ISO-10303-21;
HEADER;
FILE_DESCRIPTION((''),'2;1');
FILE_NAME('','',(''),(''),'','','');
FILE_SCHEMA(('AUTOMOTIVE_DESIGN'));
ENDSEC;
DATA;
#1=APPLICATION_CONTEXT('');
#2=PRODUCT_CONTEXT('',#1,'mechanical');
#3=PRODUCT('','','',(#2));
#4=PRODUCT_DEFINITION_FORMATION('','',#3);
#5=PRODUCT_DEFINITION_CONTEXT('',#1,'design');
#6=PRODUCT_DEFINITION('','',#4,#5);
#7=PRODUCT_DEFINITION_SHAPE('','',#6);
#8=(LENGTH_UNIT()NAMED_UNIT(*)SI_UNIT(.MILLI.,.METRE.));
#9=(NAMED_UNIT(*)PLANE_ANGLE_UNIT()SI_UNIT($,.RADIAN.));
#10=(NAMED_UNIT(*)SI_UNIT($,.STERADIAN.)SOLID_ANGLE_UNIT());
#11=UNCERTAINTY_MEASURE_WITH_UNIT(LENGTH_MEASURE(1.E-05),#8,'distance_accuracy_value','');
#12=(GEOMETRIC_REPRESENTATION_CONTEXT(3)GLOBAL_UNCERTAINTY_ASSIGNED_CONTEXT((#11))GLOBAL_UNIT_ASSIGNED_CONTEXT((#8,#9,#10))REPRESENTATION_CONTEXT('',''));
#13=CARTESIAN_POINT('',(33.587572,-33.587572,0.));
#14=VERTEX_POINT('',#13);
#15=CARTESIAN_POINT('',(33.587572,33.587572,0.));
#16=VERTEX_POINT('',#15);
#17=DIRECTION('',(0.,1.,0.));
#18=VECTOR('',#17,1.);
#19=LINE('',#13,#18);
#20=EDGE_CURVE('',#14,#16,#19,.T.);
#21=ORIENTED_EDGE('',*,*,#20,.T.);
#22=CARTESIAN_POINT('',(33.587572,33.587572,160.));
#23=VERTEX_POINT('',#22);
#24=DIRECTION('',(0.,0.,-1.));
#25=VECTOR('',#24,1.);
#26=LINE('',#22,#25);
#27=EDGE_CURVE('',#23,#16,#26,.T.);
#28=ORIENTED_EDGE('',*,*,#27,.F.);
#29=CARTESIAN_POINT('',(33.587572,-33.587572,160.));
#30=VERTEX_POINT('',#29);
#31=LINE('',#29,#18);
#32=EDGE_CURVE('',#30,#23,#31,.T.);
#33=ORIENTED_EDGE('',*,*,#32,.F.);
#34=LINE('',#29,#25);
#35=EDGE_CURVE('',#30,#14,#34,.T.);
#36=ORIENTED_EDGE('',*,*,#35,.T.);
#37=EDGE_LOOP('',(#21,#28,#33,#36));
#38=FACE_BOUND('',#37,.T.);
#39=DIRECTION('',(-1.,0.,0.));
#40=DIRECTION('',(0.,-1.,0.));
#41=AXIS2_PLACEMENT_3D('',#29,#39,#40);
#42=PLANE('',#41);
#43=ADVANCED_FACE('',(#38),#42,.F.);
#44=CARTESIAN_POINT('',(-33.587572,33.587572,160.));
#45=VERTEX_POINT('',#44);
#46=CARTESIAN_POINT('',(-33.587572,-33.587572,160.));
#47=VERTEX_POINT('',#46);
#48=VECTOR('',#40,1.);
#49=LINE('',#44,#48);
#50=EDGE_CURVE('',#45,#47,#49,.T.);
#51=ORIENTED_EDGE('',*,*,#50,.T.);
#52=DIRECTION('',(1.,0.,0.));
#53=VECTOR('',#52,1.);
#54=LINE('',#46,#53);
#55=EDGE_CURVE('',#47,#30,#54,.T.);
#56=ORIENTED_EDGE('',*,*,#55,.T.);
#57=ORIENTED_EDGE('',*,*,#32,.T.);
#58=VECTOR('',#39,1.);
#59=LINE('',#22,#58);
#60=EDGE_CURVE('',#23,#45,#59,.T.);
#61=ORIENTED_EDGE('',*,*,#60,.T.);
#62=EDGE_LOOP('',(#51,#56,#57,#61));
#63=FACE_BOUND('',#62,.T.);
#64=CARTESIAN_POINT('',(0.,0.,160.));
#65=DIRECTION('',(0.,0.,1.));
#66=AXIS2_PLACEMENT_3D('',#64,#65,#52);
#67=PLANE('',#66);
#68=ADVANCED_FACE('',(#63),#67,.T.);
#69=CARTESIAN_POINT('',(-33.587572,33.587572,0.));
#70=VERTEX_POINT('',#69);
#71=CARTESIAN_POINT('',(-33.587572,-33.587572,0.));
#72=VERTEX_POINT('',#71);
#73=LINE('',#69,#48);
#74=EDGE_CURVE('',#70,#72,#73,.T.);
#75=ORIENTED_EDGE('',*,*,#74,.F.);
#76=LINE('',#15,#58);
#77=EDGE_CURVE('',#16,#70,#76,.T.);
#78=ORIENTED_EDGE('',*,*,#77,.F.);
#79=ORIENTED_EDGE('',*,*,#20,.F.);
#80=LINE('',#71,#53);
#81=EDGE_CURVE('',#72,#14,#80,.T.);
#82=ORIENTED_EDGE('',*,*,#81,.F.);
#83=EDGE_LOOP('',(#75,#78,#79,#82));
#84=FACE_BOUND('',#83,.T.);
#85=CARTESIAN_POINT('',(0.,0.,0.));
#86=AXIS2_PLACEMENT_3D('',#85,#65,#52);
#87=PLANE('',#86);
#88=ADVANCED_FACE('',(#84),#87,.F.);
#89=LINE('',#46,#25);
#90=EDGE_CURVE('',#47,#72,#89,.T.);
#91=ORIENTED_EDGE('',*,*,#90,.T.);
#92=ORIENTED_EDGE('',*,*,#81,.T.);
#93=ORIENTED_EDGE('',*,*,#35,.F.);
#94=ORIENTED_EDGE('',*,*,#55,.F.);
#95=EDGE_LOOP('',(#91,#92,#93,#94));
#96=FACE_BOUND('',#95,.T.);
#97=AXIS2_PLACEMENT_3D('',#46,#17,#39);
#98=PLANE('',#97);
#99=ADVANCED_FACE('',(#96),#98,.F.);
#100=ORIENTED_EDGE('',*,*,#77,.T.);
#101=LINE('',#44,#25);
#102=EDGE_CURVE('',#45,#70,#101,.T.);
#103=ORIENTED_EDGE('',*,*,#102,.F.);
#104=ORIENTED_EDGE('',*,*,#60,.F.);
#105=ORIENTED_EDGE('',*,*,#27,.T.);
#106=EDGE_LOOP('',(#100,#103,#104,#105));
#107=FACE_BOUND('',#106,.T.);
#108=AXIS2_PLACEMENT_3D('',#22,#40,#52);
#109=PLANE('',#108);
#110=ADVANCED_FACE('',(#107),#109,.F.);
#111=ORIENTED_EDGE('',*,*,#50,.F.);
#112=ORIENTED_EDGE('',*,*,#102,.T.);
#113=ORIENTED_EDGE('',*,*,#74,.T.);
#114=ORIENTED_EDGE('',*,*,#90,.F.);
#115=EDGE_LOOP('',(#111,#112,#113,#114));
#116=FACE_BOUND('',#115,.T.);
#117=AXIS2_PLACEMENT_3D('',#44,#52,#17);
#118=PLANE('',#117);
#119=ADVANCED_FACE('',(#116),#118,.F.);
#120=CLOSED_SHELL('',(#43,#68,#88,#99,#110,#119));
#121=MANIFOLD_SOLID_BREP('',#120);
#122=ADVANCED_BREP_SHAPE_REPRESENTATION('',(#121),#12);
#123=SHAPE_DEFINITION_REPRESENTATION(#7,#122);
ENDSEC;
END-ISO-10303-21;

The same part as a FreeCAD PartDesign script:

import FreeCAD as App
import Part
import Sketcher
Q = App.Units.Quantity

doc = App.newDocument("Part")
body = doc.addObject("PartDesign::Body", "Body")

# Sketch on XY plane
sketch1 = doc.addObject("Sketcher::SketchObject", "Sketch")
body.addObject(sketch1)
sketch1.AttachmentSupport = (doc.XY_Plane, [""])
sketch1.MapMode = "FlatFace"
sketch1.addGeometry(Part.LineSegment(App.Vector(-33.587572, 33.587572, 0), App.Vector(-33.587572, -33.587572, 0)), False)
sketch1.addGeometry(Part.LineSegment(App.Vector(-33.587572, -33.587572, 0), App.Vector(33.587572, -33.587572, 0)), False)
sketch1.addGeometry(Part.LineSegment(App.Vector(33.587572, -33.587572, 0), App.Vector(33.587572, 33.587572, 0)), False)
sketch1.addGeometry(Part.LineSegment(App.Vector(33.587572, 33.587572, 0), App.Vector(-33.587572, 33.587572, 0)), False)
sketch1.addConstraint(Sketcher.Constraint("Coincident", 0, 2, 1, 1))
sketch1.addConstraint(Sketcher.Constraint("Coincident", 1, 2, 2, 1))
sketch1.addConstraint(Sketcher.Constraint("Coincident", 2, 2, 3, 1))
sketch1.addConstraint(Sketcher.Constraint("Coincident", 3, 2, 0, 1))
sketch1.addConstraint(Sketcher.Constraint("Vertical", 0))
sketch1.addConstraint(Sketcher.Constraint("Horizontal", 1))
sketch1.addConstraint(Sketcher.Constraint("Vertical", 2))
sketch1.addConstraint(Sketcher.Constraint("Horizontal", 3))
sketch1.addConstraint(Sketcher.Constraint("Symmetric", 0, 2, 2, 2, -1, 1))
sketch1.addConstraint(Sketcher.Constraint("Equal", 3, 0))
sketch1.addConstraint(Sketcher.Constraint("DistanceX", 1, 1, 1, 2, Q("67.175144 mm")))
pad1 = doc.addObject("PartDesign::Pad", "Pad")
body.addObject(pad1)
pad1.Profile = sketch1
pad1.Length = 160

doc.recompute()
